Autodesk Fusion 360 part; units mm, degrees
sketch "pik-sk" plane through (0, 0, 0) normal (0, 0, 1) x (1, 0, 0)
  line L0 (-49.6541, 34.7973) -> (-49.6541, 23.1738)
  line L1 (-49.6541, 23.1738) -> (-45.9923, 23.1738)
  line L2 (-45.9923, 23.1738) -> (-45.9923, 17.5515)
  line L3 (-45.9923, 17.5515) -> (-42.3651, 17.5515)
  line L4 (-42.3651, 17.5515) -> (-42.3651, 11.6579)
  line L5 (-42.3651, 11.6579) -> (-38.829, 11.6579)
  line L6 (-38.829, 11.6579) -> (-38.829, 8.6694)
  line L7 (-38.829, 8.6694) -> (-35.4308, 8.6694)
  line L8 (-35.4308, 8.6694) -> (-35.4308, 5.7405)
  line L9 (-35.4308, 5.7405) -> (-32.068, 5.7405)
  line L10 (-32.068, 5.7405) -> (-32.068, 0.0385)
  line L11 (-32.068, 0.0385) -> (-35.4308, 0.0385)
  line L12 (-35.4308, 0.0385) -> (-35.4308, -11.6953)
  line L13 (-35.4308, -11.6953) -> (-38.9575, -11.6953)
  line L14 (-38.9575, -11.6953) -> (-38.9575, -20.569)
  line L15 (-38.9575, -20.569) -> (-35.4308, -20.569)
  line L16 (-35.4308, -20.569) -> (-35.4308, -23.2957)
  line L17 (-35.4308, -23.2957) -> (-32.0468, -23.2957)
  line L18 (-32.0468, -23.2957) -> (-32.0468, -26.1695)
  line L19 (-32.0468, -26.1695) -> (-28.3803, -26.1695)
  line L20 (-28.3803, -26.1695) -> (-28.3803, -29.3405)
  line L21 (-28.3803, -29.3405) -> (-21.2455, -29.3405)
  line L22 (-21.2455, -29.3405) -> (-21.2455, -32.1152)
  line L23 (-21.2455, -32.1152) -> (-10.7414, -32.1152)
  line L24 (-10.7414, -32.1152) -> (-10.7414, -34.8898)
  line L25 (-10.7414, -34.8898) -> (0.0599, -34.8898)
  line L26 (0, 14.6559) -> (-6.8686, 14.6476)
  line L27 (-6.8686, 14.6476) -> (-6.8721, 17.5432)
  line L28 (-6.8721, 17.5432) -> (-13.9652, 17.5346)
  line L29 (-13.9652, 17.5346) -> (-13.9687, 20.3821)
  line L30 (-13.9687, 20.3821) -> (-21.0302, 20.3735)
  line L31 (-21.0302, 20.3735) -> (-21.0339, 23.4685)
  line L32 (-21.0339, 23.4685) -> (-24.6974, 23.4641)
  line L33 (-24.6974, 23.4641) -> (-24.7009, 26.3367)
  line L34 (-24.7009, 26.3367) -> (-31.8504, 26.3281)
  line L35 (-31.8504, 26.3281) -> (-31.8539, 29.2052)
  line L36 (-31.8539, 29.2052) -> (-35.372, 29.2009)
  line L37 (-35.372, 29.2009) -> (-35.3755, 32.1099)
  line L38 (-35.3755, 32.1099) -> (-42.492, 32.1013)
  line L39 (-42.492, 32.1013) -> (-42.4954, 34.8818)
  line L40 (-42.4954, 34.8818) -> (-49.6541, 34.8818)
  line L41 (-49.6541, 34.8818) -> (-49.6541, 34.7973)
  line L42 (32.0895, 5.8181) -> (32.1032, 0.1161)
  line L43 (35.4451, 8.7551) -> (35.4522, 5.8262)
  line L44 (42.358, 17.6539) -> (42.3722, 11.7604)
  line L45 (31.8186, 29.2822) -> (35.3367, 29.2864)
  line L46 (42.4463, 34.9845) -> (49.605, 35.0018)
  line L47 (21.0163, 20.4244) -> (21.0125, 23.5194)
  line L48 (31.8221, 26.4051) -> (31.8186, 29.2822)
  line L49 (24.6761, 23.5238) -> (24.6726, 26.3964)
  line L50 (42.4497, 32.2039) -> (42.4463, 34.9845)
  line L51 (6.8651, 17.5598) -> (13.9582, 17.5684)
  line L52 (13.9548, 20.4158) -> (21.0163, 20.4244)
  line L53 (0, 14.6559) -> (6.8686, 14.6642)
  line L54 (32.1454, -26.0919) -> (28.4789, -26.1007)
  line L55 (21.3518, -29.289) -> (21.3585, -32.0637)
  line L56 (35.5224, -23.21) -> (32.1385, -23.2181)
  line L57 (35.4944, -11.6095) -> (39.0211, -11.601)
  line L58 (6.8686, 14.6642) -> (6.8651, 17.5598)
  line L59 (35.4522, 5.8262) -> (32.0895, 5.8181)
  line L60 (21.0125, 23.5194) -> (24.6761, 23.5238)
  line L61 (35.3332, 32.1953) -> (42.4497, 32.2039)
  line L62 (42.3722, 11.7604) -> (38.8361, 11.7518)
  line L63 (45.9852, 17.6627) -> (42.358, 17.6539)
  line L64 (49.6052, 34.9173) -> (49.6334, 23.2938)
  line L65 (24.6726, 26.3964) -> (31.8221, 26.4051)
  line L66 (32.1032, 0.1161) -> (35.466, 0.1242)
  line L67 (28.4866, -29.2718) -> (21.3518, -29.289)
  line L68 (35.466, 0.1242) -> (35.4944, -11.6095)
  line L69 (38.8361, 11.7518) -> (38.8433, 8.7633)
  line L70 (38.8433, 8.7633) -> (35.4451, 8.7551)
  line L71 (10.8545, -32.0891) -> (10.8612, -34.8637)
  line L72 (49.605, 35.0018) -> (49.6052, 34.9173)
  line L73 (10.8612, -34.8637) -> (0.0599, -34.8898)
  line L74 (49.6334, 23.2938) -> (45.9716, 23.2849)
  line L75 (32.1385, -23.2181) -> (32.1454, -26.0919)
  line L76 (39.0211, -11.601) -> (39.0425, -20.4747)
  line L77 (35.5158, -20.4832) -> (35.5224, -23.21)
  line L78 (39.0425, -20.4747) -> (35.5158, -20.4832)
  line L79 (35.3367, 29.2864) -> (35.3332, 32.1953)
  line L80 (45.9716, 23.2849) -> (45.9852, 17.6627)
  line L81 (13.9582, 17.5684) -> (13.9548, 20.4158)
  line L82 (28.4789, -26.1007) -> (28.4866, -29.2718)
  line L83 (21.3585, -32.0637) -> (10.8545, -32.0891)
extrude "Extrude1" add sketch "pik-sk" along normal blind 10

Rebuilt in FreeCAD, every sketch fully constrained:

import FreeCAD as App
import Part
import Sketcher
from FreeCAD import Vector
Q = App.Units.Quantity

doc = App.newDocument("Part")
params = doc.addObject("Spreadsheet::Sheet", "Params")
for row, (alias, value) in enumerate([
    ("sketch1_length", "0.114 in"),
    ("pad1_length", "0.3937008 in"),
], start=1):
    params.set(f"A{row}", alias)
    params.set(f"B{row}", "=" + value)
    params.setAlias(f"B{row}", alias)

body = doc.addObject("PartDesign::Body", "Body")

# Sketch on XY plane
sketch1 = body.newObject("Sketcher::SketchObject", "Sketch")
sketch1.AttachmentSupport = (doc.getObject("XY_Plane"), [""])
sketch1.MapMode = "FlatFace"
sketch1.addGeometry([
    Part.LineSegment(Vector(-49.6541, 34.8818, 0), Vector(-49.6541, 23.1738, 0)),  # 0
    Part.LineSegment(Vector(-49.6541, 23.1738, 0), Vector(-45.9923, 23.1738, 0)),  # 1
    Part.LineSegment(Vector(-45.9923, 23.1738, 0), Vector(-45.9923, 17.5515, 0)),  # 2
    Part.LineSegment(Vector(-45.9923, 17.5515, 0), Vector(-42.3651, 17.5515, 0)),  # 3
    Part.LineSegment(Vector(-42.3651, 17.5515, 0), Vector(-42.3651, 11.6579, 0)),  # 4
    Part.LineSegment(Vector(-42.3651, 11.6579, 0), Vector(-38.829, 11.6579, 0)),  # 5
    Part.LineSegment(Vector(-38.829, 11.6579, 0), Vector(-38.829, 8.6694, 0)),  # 6
    Part.LineSegment(Vector(-38.829, 8.6694, 0), Vector(-35.4308, 8.6694, 0)),  # 7
    Part.LineSegment(Vector(-35.4308, 8.6694, 0), Vector(-35.4308, 5.7405, 0)),  # 8
    Part.LineSegment(Vector(-35.4308, 5.7405, 0), Vector(-32.068, 5.7405, 0)),  # 9
    Part.LineSegment(Vector(-32.068, 5.7405, 0), Vector(-32.068, 0.0385, 0)),  # 10
    Part.LineSegment(Vector(-32.068, 0.0385, 0), Vector(-35.4308, 0.0385, 0)),  # 11
    Part.LineSegment(Vector(-35.4308, 0.0385, 0), Vector(-35.4308, -11.6953, 0)),  # 12
    Part.LineSegment(Vector(-35.4308, -11.6953, 0), Vector(-38.9575, -11.6953, 0)),  # 13
    Part.LineSegment(Vector(-38.9575, -11.6953, 0), Vector(-38.9575, -20.569, 0)),  # 14
    Part.LineSegment(Vector(-38.9575, -20.569, 0), Vector(-35.4308, -20.569, 0)),  # 15
    Part.LineSegment(Vector(-35.4308, -20.569, 0), Vector(-35.4308, -23.2957, 0)),  # 16
    Part.LineSegment(Vector(-35.4308, -23.2957, 0), Vector(-32.0468, -23.2957, 0)),  # 17
    Part.LineSegment(Vector(-32.0468, -23.2957, 0), Vector(-32.0468, -26.1695, 0)),  # 18
    Part.LineSegment(Vector(-32.0468, -26.1695, 0), Vector(-28.3803, -26.1695, 0)),  # 19
    Part.LineSegment(Vector(-28.3803, -26.1695, 0), Vector(-28.3803, -29.3405, 0)),  # 20
    Part.LineSegment(Vector(-28.3803, -29.3405, 0), Vector(-21.2455, -29.3405, 0)),  # 21
    Part.LineSegment(Vector(-21.2455, -29.3405, 0), Vector(-21.2455, -32.1152, 0)),  # 22
    Part.LineSegment(Vector(-21.2455, -32.1152, 0), Vector(-10.7414, -32.1152, 0)),  # 23
    Part.LineSegment(Vector(-10.7414, -32.1152, 0), Vector(-10.7414, -34.8898, 0)),  # 24
    Part.LineSegment(Vector(-10.7414, -34.8898, 0), Vector(0.0599, -34.8898, 0)),  # 25
    Part.LineSegment(Vector(0.0599, -34.8898, 0), Vector(10.8612, -34.8637, 0)),  # 26
    Part.LineSegment(Vector(10.8612, -34.8637, 0), Vector(10.8545, -32.0891, 0)),  # 27
    Part.LineSegment(Vector(10.8545, -32.0891, 0), Vector(21.3585, -32.0637, 0)),  # 28
    Part.LineSegment(Vector(21.3585, -32.0637, 0), Vector(21.3518, -29.289, 0)),  # 29
    Part.LineSegment(Vector(21.3518, -29.289, 0), Vector(28.4866, -29.2718, 0)),  # 30
    Part.LineSegment(Vector(28.4866, -29.2718, 0), Vector(28.4789, -26.1007, 0)),  # 31
    Part.LineSegment(Vector(28.4789, -26.1007, 0), Vector(32.1454, -26.0919, 0)),  # 32
    Part.LineSegment(Vector(32.1454, -26.0919, 0), Vector(32.1385, -23.2181, 0)),  # 33
    Part.LineSegment(Vector(32.1385, -23.2181, 0), Vector(35.5224, -23.21, 0)),  # 34
    Part.LineSegment(Vector(35.5224, -23.21, 0), Vector(35.5158, -20.4832, 0)),  # 35
    Part.LineSegment(Vector(35.5158, -20.4832, 0), Vector(39.0425, -20.4747, 0)),  # 36
    Part.LineSegment(Vector(39.0425, -20.4747, 0), Vector(39.0211, -11.601, 0)),  # 37
    Part.LineSegment(Vector(39.0211, -11.601, 0), Vector(35.4944, -11.6095, 0)),  # 38
    Part.LineSegment(Vector(35.4944, -11.6095, 0), Vector(35.466, 0.1242, 0)),  # 39
    Part.LineSegment(Vector(35.466, 0.1242, 0), Vector(32.1032, 0.1161, 0)),  # 40
    Part.LineSegment(Vector(32.1032, 0.1161, 0), Vector(32.0895, 5.8181, 0)),  # 41
    Part.LineSegment(Vector(32.0895, 5.8181, 0), Vector(35.4522, 5.8262, 0)),  # 42
    Part.LineSegment(Vector(35.4522, 5.8262, 0), Vector(35.4451, 8.7551, 0)),  # 43
    Part.LineSegment(Vector(35.4451, 8.7551, 0), Vector(38.8433, 8.7633, 0)),  # 44
    Part.LineSegment(Vector(38.8433, 8.7633, 0), Vector(38.8361, 11.7518, 0)),  # 45
    Part.LineSegment(Vector(38.8361, 11.7518, 0), Vector(42.3722, 11.7604, 0)),  # 46
    Part.LineSegment(Vector(42.3722, 11.7604, 0), Vector(42.358, 17.6539, 0)),  # 47
    Part.LineSegment(Vector(42.358, 17.6539, 0), Vector(45.9852, 17.6627, 0)),  # 48
    Part.LineSegment(Vector(45.9852, 17.6627, 0), Vector(45.9716, 23.2849, 0)),  # 49
    Part.LineSegment(Vector(45.9716, 23.2849, 0), Vector(49.6334, 23.2938, 0)),  # 50
    Part.LineSegment(Vector(49.6334, 23.2938, 0), Vector(49.6052, 34.9173, 0)),  # 51
    Part.LineSegment(Vector(49.6052, 34.9173, 0), Vector(49.605, 35.0018, 0)),  # 52
    Part.LineSegment(Vector(49.605, 35.0018, 0), Vector(42.4463, 34.9845, 0)),  # 53
    Part.LineSegment(Vector(42.4463, 34.9845, 0), Vector(42.4497, 32.2039, 0)),  # 54
    Part.LineSegment(Vector(42.4497, 32.2039, 0), Vector(35.3332, 32.1953, 0)),  # 55
    Part.LineSegment(Vector(35.3332, 32.1953, 0), Vector(35.3367, 29.2864, 0)),  # 56
    Part.LineSegment(Vector(35.3367, 29.2864, 0), Vector(31.8186, 29.2822, 0)),  # 57
    Part.LineSegment(Vector(31.8186, 29.2822, 0), Vector(31.8221, 26.4051, 0)),  # 58
    Part.LineSegment(Vector(31.8221, 26.4051, 0), Vector(24.6726, 26.3964, 0)),  # 59
    Part.LineSegment(Vector(24.6726, 26.3964, 0), Vector(24.6761, 23.5238, 0)),  # 60
    Part.LineSegment(Vector(24.6761, 23.5238, 0), Vector(21.0125, 23.5194, 0)),  # 61
    Part.LineSegment(Vector(21.0125, 23.5194, 0), Vector(21.0163, 20.4244, 0)),  # 62
    Part.LineSegment(Vector(21.0163, 20.4244, 0), Vector(13.9548, 20.4158, 0)),  # 63
    Part.LineSegment(Vector(13.9548, 20.4158, 0), Vector(13.9582, 17.5684, 0)),  # 64
    Part.LineSegment(Vector(13.9582, 17.5684, 0), Vector(6.8651, 17.5598, 0)),  # 65
    Part.LineSegment(Vector(6.8651, 17.5598, 0), Vector(6.8686, 14.6642, 0)),  # 66
    Part.LineSegment(Vector(6.8686, 14.6642, 0), Vector(-6.8686, 14.6476, 0)),  # 67
    Part.LineSegment(Vector(-6.8686, 14.6476, 0), Vector(-6.8721, 17.5432, 0)),  # 68
    Part.LineSegment(Vector(-6.8721, 17.5432, 0), Vector(-13.9652, 17.5346, 0)),  # 69
    Part.LineSegment(Vector(-13.9652, 17.5346, 0), Vector(-13.9687, 20.3821, 0)),  # 70
    Part.LineSegment(Vector(-13.9687, 20.3821, 0), Vector(-21.0302, 20.3735, 0)),  # 71
    Part.LineSegment(Vector(-21.0302, 20.3735, 0), Vector(-21.0339, 23.4685, 0)),  # 72
    Part.LineSegment(Vector(-21.0339, 23.4685, 0), Vector(-24.6974, 23.4641, 0)),  # 73
    Part.LineSegment(Vector(-24.6974, 23.4641, 0), Vector(-24.7009, 26.3367, 0)),  # 74
    Part.LineSegment(Vector(-24.7009, 26.3367, 0), Vector(-31.8504, 26.3281, 0)),  # 75
    Part.LineSegment(Vector(-31.8504, 26.3281, 0), Vector(-31.8539, 29.2052, 0)),  # 76
    Part.LineSegment(Vector(-31.8539, 29.2052, 0), Vector(-35.372, 29.2009, 0)),  # 77
    Part.LineSegment(Vector(-35.372, 29.2009, 0), Vector(-35.3755, 32.1099, 0)),  # 78
    Part.LineSegment(Vector(-35.3755, 32.1099, 0), Vector(-42.492, 32.1013, 0)),  # 79
    Part.LineSegment(Vector(-42.492, 32.1013, 0), Vector(-42.4954, 34.8818, 0)),  # 80
    Part.LineSegment(Vector(-42.4954, 34.8818, 0), Vector(-49.6541, 34.8818, 0)),  # 81
], False)
sketch1.addConstraint([
    Sketcher.Constraint("Coincident", 0, 2, 1, 1),
    Sketcher.Constraint("Coincident", 1, 2, 2, 1),
    Sketcher.Constraint("Coincident", 2, 2, 3, 1),
    Sketcher.Constraint("Coincident", 3, 2, 4, 1),
    Sketcher.Constraint("Coincident", 4, 2, 5, 1),
    Sketcher.Constraint("Coincident", 5, 2, 6, 1),
    Sketcher.Constraint("Coincident", 6, 2, 7, 1),
    Sketcher.Constraint("Coincident", 7, 2, 8, 1),
    Sketcher.Constraint("Coincident", 8, 2, 9, 1),
    Sketcher.Constraint("Coincident", 9, 2, 10, 1),
    Sketcher.Constraint("Coincident", 10, 2, 11, 1),
    Sketcher.Constraint("Coincident", 11, 2, 12, 1),
    Sketcher.Constraint("Coincident", 12, 2, 13, 1),
    Sketcher.Constraint("Coincident", 13, 2, 14, 1),
    Sketcher.Constraint("Coincident", 14, 2, 15, 1),
    Sketcher.Constraint("Coincident", 15, 2, 16, 1),
    Sketcher.Constraint("Coincident", 16, 2, 17, 1),
    Sketcher.Constraint("Coincident", 17, 2, 18, 1),
    Sketcher.Constraint("Coincident", 18, 2, 19, 1),
    Sketcher.Constraint("Coincident", 19, 2, 20, 1),
    Sketcher.Constraint("Coincident", 20, 2, 21, 1),
    Sketcher.Constraint("Coincident", 21, 2, 22, 1),
    Sketcher.Constraint("Coincident", 22, 2, 23, 1),
    Sketcher.Constraint("Coincident", 23, 2, 24, 1),
    Sketcher.Constraint("Coincident", 24, 2, 25, 1),
    Sketcher.Constraint("Coincident", 25, 2, 26, 1),
    Sketcher.Constraint("Coincident", 26, 2, 27, 1),
    Sketcher.Constraint("Coincident", 27, 2, 28, 1),
    Sketcher.Constraint("Coincident", 28, 2, 29, 1),
    Sketcher.Constraint("Coincident", 29, 2, 30, 1),
    Sketcher.Constraint("Coincident", 30, 2, 31, 1),
    Sketcher.Constraint("Coincident", 31, 2, 32, 1),
    Sketcher.Constraint("Coincident", 32, 2, 33, 1),
    Sketcher.Constraint("Coincident", 33, 2, 34, 1),
    Sketcher.Constraint("Coincident", 34, 2, 35, 1),
    Sketcher.Constraint("Coincident", 35, 2, 36, 1),
    Sketcher.Constraint("Coincident", 36, 2, 37, 1),
    Sketcher.Constraint("Coincident", 37, 2, 38, 1),
    Sketcher.Constraint("Coincident", 38, 2, 39, 1),
    Sketcher.Constraint("Coincident", 39, 2, 40, 1),
    Sketcher.Constraint("Coincident", 40, 2, 41, 1),
    Sketcher.Constraint("Coincident", 41, 2, 42, 1),
    Sketcher.Constraint("Coincident", 42, 2, 43, 1),
    Sketcher.Constraint("Coincident", 43, 2, 44, 1),
    Sketcher.Constraint("Coincident", 44, 2, 45, 1),
    Sketcher.Constraint("Coincident", 45, 2, 46, 1),
    Sketcher.Constraint("Coincident", 46, 2, 47, 1),
    Sketcher.Constraint("Coincident", 47, 2, 48, 1),
    Sketcher.Constraint("Coincident", 48, 2, 49, 1),
    Sketcher.Constraint("Coincident", 49, 2, 50, 1),
    Sketcher.Constraint("Coincident", 50, 2, 51, 1),
    Sketcher.Constraint("Coincident", 51, 2, 52, 1),
    Sketcher.Constraint("Coincident", 52, 2, 53, 1),
    Sketcher.Constraint("Coincident", 53, 2, 54, 1),
    Sketcher.Constraint("Coincident", 54, 2, 55, 1),
    Sketcher.Constraint("Coincident", 55, 2, 56, 1),
    Sketcher.Constraint("Coincident", 56, 2, 57, 1),
    Sketcher.Constraint("Coincident", 57, 2, 58, 1),
    Sketcher.Constraint("Coincident", 58, 2, 59, 1),
    Sketcher.Constraint("Coincident", 59, 2, 60, 1),
    Sketcher.Constraint("Coincident", 60, 2, 61, 1),
    Sketcher.Constraint("Coincident", 61, 2, 62, 1),
    Sketcher.Constraint("Coincident", 62, 2, 63, 1),
    Sketcher.Constraint("Coincident", 63, 2, 64, 1),
    Sketcher.Constraint("Coincident", 64, 2, 65, 1),
    Sketcher.Constraint("Coincident", 65, 2, 66, 1),
    Sketcher.Constraint("Coincident", 66, 2, 67, 1),
    Sketcher.Constraint("Coincident", 67, 2, 68, 1),
    Sketcher.Constraint("Coincident", 68, 2, 69, 1),
    Sketcher.Constraint("Coincident", 69, 2, 70, 1),
    Sketcher.Constraint("Coincident", 70, 2, 71, 1),
    Sketcher.Constraint("Coincident", 71, 2, 72, 1),
    Sketcher.Constraint("Coincident", 72, 2, 73, 1),
    Sketcher.Constraint("Coincident", 73, 2, 74, 1),
    Sketcher.Constraint("Coincident", 74, 2, 75, 1),
    Sketcher.Constraint("Coincident", 75, 2, 76, 1),
    Sketcher.Constraint("Coincident", 76, 2, 77, 1),
    Sketcher.Constraint("Coincident", 77, 2, 78, 1),
    Sketcher.Constraint("Coincident", 78, 2, 79, 1),
    Sketcher.Constraint("Coincident", 79, 2, 80, 1),
    Sketcher.Constraint("Coincident", 80, 2, 81, 1),
    Sketcher.Constraint("Coincident", 81, 2, 0, 1),
    Sketcher.Constraint("Vertical", 0),
    Sketcher.Constraint("Horizontal", 1),
    Sketcher.Constraint("Vertical", 2),
    Sketcher.Constraint("Horizontal", 3),
    Sketcher.Constraint("Vertical", 4),
    Sketcher.Constraint("Horizontal", 5),
    Sketcher.Constraint("Vertical", 6),
    Sketcher.Constraint("Horizontal", 7),
    Sketcher.Constraint("Vertical", 8),
    Sketcher.Constraint("Horizontal", 9),
    Sketcher.Constraint("Vertical", 10),
    Sketcher.Constraint("Horizontal", 11),
    Sketcher.Constraint("Vertical", 12),
    Sketcher.Constraint("Horizontal", 13),
    Sketcher.Constraint("Vertical", 14),
    Sketcher.Constraint("Horizontal", 15),
    Sketcher.Constraint("Vertical", 16),
    Sketcher.Constraint("Horizontal", 17),
    Sketcher.Constraint("Vertical", 18),
    Sketcher.Constraint("Horizontal", 19),
    Sketcher.Constraint("Vertical", 20),
    Sketcher.Constraint("Horizontal", 21),
    Sketcher.Constraint("Vertical", 22),
    Sketcher.Constraint("Horizontal", 23),
    Sketcher.Constraint("Vertical", 24),
    Sketcher.Constraint("Horizontal", 25),
    Sketcher.Constraint("Horizontal", 81),
    Sketcher.Constraint("Perpendicular", 26, 27),
    Sketcher.Constraint("Perpendicular", 27, 28),
    Sketcher.Constraint("Perpendicular", 28, 29),
    Sketcher.Constraint("Perpendicular", 29, 30),
    Sketcher.Constraint("Perpendicular", 30, 31),
    Sketcher.Constraint("Perpendicular", 31, 32),
    Sketcher.Constraint("Perpendicular", 32, 33),
    Sketcher.Constraint("Perpendicular", 33, 34),
    Sketcher.Constraint("Perpendicular", 34, 35),
    Sketcher.Constraint("Perpendicular", 35, 36),
    Sketcher.Constraint("Perpendicular", 36, 37),
    Sketcher.Constraint("Perpendicular", 37, 38),
    Sketcher.Constraint("Perpendicular", 38, 39),
    Sketcher.Constraint("Perpendicular", 39, 40),
    Sketcher.Constraint("Perpendicular", 40, 41),
    Sketcher.Constraint("Perpendicular", 41, 42),
    Sketcher.Constraint("Perpendicular", 42, 43),
    Sketcher.Constraint("Perpendicular", 43, 44),
    Sketcher.Constraint("Perpendicular", 44, 45),
    Sketcher.Constraint("Perpendicular", 45, 46),
    Sketcher.Constraint("Perpendicular", 46, 47),
    Sketcher.Constraint("Perpendicular", 47, 48),
    Sketcher.Constraint("Perpendicular", 48, 49),
    Sketcher.Constraint("Perpendicular", 49, 50),
    Sketcher.Constraint("Perpendicular", 50, 51),
    Sketcher.Constraint("Parallel", 51, 52),
    Sketcher.Constraint("Perpendicular", 52, 53),
    Sketcher.Constraint("Perpendicular", 54, 55),
    Sketcher.Constraint("Perpendicular", 55, 56),
    Sketcher.Constraint("Perpendicular", 56, 57),
    Sketcher.Constraint("Perpendicular", 57, 58),
    Sketcher.Constraint("Perpendicular", 58, 59),
    Sketcher.Constraint("Perpendicular", 59, 60),
    Sketcher.Constraint("Perpendicular", 60, 61),
    Sketcher.Constraint("Perpendicular", 61, 62),
    Sketcher.Constraint("Perpendicular", 62, 63),
    Sketcher.Constraint("Perpendicular", 63, 64),
    Sketcher.Constraint("Perpendicular", 64, 65),
    Sketcher.Constraint("Perpendicular", 65, 66),
    Sketcher.Constraint("Perpendicular", 66, 67),
    Sketcher.Constraint("Perpendicular", 67, 68),
    Sketcher.Constraint("Perpendicular", 68, 69),
    Sketcher.Constraint("Perpendicular", 69, 70),
    Sketcher.Constraint("Perpendicular", 70, 71),
    Sketcher.Constraint("Perpendicular", 71, 72),
    Sketcher.Constraint("Perpendicular", 72, 73),
    Sketcher.Constraint("Perpendicular", 73, 74),
    Sketcher.Constraint("Perpendicular", 74, 75),
    Sketcher.Constraint("Perpendicular", 75, 76),
    Sketcher.Constraint("Perpendicular", 76, 77),
    Sketcher.Constraint("Perpendicular", 77, 78),
    Sketcher.Constraint("Perpendicular", 78, 79),
    Sketcher.Constraint("Perpendicular", 79, 80),
    Sketcher.Constraint("Vertical", 8, 2, 11, 2),
    Sketcher.Constraint("Vertical", 12, 2, 15, 2),
    Sketcher.Constraint("Equal", 22, 24),
    Sketcher.Constraint("Equal", 27, 29),
    Sketcher.Constraint("Equal", 36, 38),
    Sketcher.Constraint("Equal", 40, 42),
    Sketcher.Constraint("Equal", 66, 68),
    Sketcher.Constraint("Equal", 65, 69),
    Sketcher.Constraint("Equal", 64, 70),
    Sketcher.Constraint("Equal", 63, 71),
    Sketcher.Constraint("Equal", 62, 72),
    Sketcher.Constraint("Equal", 61, 73),
    Sketcher.Constraint("Equal", 60, 74),
    Sketcher.Constraint("Equal", 59, 75),
    Sketcher.Constraint("Equal", 58, 76),
    Sketcher.Constraint("Equal", 57, 77),
    Sketcher.Constraint("Equal", 56, 78),
    Sketcher.Constraint("Equal", 55, 79),
    Sketcher.Constraint("Equal", 54, 80),
    Sketcher.Constraint("Angle", 31, Q("90.1391 deg")),
    Sketcher.Constraint("Angle", 54, Q("-89.93 deg")),
    Sketcher.Constraint("Distance", 66, Q("0.114 in")),
    Sketcher.Constraint("DistanceX", 3, 1, 3, 2, Q("0.1428 in")),
    Sketcher.Constraint("DistanceX", 9, 1, 9, 2, Q("0.1324 in")),
    Sketcher.Constraint("DistanceX", 21, 1, 21, 2, Q("0.2809 in")),
    Sketcher.Constraint("DistanceY", 8, 2, 8, 1, Q("0.1153 in")),
    Sketcher.Constraint("DistanceY", 10, 2, 10, 1, Q("0.2245 in")),
    Sketcher.Constraint("DistanceY", -1, 1, 2, 2, Q("0.691 in")),
    Sketcher.Constraint("DistanceY", -1, 1, 8, 2, Q("0.226 in")),
    Sketcher.Constraint("DistanceY", -1, 1, 44, 2, Q("0.345 in")),
    Sketcher.Constraint("DistanceY", -1, 1, 46, 2, Q("0.463 in")),
    Sketcher.Constraint("DistanceY", -1, 1, 56, 2, Q("1.153 in")),
    Sketcher.Constraint("Distance", 30, Q("0.2809 in")),
    Sketcher.Constraint("Distance", 40, Q("0.1324 in")),
    Sketcher.Constraint("Distance", 41, Q("0.2245 in")),
    Sketcher.Constraint("Distance", 43, Q("0.1153 in")),
    Sketcher.Constraint("Distance", 48, Q("0.1428 in")),
    Sketcher.Constraint("Distance", 57, Q("0.1385 in")),
    Sketcher.Constraint("Distance", 60, Q("0.1131 in")),
    Sketcher.Constraint("Distance", 64, Q("0.1121 in")),
    Sketcher.Constraint("DistanceX", 1, 1, 1, 2, 3.6618),
    Sketcher.Constraint("DistanceX", 5, 1, 5, 2, 3.536),
    Sketcher.Constraint("DistanceX", 7, 1, 7, 2, 3.3982),
    Sketcher.Constraint("DistanceX", 13, 2, 13, 1, 3.5267),
    Sketcher.Constraint("DistanceX", 17, 1, 17, 2, 3.384),
    Sketcher.Constraint("DistanceX", 19, 1, 19, 2, 3.6665),
    Sketcher.Constraint("DistanceX", 23, 1, 23, 2, 10.504),
    Sketcher.Constraint("DistanceX", 25, 1, 25, 2, 10.8013),
    Sketcher.Constraint("DistanceX", 81, 2, 81, 1, 7.1587),
    Sketcher.Constraint("DistanceY", 0, 2, 0, 1, 11.708),
    Sketcher.Constraint("DistanceY", 2, 2, 2, 1, 5.6223),
    Sketcher.Constraint("DistanceY", 4, 2, 4, 1, 5.8936),
    Sketcher.Constraint("DistanceY", 12, 2, 12, 1, 11.7338),
    Sketcher.Constraint("DistanceY", 14, 2, 14, 1, 8.8737),
    Sketcher.Constraint("DistanceY", 16, 2, 16, 1, 2.7267),
    Sketcher.Constraint("DistanceY", 18, 2, 18, 1, 2.8738),
    Sketcher.Constraint("DistanceY", 20, 2, 20, 1, 3.171),
    Sketcher.Constraint("DistanceY", 22, 2, 22, 1, 2.7747),
    Sketcher.Constraint("DistanceX", 5, 2, -1, 1, Q("1.5287 in")),
    Sketcher.Constraint("DistanceX", -1, 1, 26, 2, Q("0.4276 in")),
    Sketcher.Constraint("DistanceY", 29, 2, -1, 1, Q("1.1531 in")),
    Sketcher.Constraint("DistanceX", -1, 1, 33, 2, Q("1.2653 in")),
    Sketcher.Constraint("DistanceY", 33, 2, -1, 1, Q("0.9141 in")),
    Sketcher.Constraint("DistanceX", -1, 1, 36, 2, Q("1.5371 in")),
    Sketcher.Constraint("DistanceY", 36, 2, -1, 1, Q("0.8061 in")),
    Sketcher.Constraint("DistanceX", -1, 1, 39, 2, Q("1.3963 in")),
    Sketcher.Constraint("DistanceX", -1, 1, 46, 2, Q("1.6682 in")),
    Sketcher.Constraint("DistanceY", -1, 1, 51, 2, Q("1.3747 in")),
    Sketcher.Constraint("DistanceX", -1, 1, 56, 2, Q("1.3912 in")),
    Sketcher.Constraint("DistanceX", -1, 1, 60, 2, Q("0.9715 in")),
    Sketcher.Constraint("DistanceY", -1, 1, 62, 2, Q("0.8041 in")),
    Sketcher.Constraint("DistanceX", -1, 1, 63, 2, Q("0.5494 in")),
    Sketcher.Constraint("DistanceX", 69, 2, -1, 1, Q("0.5498 in")),
    Sketcher.Constraint("DistanceX", 72, 2, -1, 1, Q("0.8281 in")),
    Sketcher.Constraint("Distance", 28, 10.504),
    Sketcher.Constraint("Distance", 31, 3.171),
    Sketcher.Constraint("Distance", 37, 8.8737),
    Sketcher.Constraint("Distance", 44, 3.3982),
    Sketcher.Constraint("Distance", 47, 5.8935),
    Sketcher.Constraint("Distance", 49, 5.6222),
    Sketcher.Constraint("Distance", 50, 3.6618),
    Sketcher.Constraint("Distance", 54, 2.7806),
    Sketcher.Constraint("Distance", 58, 2.877),
    Sketcher.Constraint("Distance", 65, 7.093),
])
sketch1.setExpression("Constraints[183]", "Params.sketch1_length")
pad1 = body.newObject("PartDesign::Pad", "Pad")
pad1.Profile = sketch1
pad1.setExpression("Length", "Params.pad1_length")

doc.recompute()
